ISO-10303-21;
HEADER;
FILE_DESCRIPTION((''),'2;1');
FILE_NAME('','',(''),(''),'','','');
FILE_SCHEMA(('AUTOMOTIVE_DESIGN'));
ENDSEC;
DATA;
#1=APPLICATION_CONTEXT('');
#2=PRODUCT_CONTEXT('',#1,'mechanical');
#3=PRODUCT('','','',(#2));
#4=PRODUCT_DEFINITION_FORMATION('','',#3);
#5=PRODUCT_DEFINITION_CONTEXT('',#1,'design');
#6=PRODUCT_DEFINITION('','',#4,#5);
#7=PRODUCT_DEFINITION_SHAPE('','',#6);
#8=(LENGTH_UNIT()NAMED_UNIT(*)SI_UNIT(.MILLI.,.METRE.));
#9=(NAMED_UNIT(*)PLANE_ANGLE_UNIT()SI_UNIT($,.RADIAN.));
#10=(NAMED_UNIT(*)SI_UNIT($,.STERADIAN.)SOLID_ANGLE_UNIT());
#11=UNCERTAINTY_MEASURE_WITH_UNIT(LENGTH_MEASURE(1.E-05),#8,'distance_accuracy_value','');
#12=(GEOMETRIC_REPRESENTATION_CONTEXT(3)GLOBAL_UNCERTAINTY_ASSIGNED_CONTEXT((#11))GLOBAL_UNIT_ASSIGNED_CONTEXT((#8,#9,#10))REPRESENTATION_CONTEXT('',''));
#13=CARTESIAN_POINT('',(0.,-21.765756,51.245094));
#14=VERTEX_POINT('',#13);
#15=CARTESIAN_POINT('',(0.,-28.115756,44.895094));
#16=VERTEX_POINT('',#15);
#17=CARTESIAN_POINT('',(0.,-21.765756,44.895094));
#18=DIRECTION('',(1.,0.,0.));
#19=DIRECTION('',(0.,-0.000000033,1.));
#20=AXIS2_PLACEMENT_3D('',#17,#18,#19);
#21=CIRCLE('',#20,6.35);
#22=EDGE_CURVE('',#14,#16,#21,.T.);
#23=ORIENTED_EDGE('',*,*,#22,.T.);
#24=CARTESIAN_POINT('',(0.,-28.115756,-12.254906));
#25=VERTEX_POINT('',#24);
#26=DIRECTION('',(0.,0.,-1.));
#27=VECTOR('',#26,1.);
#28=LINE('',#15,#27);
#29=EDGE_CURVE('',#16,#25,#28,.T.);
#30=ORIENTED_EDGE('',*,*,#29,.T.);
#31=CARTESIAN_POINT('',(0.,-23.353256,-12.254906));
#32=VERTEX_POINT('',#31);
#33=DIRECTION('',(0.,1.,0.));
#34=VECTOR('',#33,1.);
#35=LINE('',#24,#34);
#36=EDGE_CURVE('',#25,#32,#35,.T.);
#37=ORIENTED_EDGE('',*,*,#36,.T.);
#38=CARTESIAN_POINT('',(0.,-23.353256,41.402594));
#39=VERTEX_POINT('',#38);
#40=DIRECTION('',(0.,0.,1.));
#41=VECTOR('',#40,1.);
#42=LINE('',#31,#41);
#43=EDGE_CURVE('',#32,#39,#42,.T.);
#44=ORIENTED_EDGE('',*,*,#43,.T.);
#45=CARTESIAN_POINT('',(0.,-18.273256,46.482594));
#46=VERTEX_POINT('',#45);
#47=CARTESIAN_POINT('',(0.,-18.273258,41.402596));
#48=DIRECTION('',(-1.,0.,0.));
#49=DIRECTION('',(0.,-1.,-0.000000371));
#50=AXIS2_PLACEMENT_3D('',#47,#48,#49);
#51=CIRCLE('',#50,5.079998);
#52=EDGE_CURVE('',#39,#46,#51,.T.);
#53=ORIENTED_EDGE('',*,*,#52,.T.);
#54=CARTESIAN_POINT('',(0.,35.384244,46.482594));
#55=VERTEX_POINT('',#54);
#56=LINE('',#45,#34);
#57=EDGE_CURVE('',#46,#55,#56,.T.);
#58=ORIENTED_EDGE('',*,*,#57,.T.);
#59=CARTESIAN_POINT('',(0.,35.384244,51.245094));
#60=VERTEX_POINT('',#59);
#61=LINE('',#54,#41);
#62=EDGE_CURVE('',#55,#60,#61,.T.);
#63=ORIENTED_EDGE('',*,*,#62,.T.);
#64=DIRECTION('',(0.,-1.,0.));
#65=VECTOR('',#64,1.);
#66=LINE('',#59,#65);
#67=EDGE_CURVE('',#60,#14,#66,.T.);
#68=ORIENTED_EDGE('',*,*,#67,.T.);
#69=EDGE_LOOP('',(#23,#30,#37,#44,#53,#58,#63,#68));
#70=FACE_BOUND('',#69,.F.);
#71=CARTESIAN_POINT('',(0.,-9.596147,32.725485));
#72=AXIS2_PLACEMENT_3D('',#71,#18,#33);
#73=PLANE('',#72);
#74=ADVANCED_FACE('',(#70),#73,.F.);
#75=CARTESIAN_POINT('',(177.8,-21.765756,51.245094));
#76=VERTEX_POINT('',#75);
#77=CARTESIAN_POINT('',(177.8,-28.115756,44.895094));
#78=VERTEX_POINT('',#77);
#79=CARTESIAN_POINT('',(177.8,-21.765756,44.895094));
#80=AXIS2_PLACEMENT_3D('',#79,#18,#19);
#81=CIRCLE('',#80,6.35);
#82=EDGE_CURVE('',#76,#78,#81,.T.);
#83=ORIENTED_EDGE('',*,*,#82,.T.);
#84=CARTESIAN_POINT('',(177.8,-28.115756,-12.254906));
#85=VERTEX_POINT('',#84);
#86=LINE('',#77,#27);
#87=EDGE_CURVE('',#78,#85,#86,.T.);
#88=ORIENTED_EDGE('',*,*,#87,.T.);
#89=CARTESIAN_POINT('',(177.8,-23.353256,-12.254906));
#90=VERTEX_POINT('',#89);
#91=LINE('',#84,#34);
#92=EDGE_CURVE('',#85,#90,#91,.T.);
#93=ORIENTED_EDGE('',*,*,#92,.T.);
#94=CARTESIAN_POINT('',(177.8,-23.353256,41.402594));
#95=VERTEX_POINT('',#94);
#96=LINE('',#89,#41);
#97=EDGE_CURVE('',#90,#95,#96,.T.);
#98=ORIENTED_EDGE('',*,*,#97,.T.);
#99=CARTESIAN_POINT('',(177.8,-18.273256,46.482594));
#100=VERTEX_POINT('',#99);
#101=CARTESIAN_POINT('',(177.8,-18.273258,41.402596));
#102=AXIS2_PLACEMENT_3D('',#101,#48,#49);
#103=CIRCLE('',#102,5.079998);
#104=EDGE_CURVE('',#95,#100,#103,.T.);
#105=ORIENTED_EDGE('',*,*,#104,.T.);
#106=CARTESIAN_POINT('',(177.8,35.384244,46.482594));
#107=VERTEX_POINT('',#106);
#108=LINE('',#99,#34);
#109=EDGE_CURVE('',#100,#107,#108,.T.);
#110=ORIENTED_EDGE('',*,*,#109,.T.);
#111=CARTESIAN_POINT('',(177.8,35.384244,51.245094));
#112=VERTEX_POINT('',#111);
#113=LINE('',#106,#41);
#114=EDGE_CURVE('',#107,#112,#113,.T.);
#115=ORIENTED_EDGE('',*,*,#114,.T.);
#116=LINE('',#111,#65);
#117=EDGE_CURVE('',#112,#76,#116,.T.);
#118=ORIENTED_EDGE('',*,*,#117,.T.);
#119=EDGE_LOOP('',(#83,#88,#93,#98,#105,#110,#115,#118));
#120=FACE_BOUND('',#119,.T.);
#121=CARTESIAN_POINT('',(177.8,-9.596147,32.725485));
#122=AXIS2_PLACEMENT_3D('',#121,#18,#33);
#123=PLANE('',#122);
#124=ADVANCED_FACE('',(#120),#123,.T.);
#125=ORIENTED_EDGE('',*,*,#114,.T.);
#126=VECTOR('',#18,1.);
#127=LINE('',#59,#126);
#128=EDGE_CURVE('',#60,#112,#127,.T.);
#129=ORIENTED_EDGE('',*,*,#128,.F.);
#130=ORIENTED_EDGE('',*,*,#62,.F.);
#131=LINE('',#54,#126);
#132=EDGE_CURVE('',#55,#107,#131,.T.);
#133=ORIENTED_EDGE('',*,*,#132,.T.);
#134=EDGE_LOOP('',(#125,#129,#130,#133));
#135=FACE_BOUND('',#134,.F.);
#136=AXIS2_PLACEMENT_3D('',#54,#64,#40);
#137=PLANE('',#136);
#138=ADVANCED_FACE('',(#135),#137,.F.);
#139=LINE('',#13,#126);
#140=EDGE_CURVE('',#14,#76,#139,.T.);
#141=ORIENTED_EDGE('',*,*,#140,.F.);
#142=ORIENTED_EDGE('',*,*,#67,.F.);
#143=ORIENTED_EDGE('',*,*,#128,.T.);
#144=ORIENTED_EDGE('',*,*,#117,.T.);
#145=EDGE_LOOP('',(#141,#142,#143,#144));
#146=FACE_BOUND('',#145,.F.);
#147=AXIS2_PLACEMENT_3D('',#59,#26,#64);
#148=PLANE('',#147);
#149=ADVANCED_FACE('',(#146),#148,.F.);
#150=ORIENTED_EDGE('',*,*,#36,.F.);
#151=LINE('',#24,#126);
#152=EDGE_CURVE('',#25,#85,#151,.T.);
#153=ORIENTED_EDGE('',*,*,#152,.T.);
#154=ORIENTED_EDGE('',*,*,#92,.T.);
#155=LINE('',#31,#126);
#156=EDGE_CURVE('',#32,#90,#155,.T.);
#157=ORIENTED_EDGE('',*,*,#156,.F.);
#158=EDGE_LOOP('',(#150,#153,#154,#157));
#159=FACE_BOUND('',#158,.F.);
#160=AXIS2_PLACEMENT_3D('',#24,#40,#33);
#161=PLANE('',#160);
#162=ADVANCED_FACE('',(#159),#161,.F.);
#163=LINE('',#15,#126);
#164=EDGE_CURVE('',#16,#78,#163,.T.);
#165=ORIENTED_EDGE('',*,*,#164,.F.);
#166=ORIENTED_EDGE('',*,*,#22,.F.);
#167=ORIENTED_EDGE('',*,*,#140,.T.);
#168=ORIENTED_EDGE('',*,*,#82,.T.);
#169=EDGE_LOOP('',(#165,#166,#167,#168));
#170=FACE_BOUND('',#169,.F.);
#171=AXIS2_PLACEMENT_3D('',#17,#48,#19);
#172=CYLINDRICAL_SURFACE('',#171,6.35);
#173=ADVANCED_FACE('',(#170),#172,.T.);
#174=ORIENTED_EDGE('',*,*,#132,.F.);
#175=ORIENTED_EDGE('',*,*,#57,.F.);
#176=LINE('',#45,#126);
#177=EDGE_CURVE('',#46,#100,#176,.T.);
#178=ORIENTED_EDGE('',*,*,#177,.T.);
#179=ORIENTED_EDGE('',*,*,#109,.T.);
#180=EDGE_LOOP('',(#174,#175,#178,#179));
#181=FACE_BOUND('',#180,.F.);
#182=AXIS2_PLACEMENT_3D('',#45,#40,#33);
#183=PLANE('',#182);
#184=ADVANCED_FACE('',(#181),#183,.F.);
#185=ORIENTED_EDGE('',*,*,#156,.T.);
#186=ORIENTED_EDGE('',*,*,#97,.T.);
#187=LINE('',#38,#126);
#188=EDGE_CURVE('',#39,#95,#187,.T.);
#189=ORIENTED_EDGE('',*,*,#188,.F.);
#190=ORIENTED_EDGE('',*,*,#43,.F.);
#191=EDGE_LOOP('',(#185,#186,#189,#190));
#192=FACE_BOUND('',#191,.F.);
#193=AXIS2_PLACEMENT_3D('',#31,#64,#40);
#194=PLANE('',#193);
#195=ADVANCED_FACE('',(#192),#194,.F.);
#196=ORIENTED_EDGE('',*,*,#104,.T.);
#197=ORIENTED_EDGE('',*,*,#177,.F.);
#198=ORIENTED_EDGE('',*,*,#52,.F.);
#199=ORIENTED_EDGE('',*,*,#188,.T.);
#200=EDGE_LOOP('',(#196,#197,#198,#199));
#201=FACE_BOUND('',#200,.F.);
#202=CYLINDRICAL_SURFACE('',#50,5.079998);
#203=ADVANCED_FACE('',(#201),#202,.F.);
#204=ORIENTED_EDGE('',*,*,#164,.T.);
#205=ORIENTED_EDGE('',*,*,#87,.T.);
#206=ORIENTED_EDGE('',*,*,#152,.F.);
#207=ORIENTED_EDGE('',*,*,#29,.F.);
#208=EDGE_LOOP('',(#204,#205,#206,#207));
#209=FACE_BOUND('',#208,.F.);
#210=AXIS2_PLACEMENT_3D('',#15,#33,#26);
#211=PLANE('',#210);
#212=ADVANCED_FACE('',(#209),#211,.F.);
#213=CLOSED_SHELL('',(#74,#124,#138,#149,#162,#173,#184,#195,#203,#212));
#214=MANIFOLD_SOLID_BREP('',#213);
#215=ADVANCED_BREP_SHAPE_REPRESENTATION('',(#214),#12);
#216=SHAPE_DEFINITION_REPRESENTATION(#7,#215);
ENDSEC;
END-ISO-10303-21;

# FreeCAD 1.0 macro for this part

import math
import FreeCAD as App
import Part
import Sketcher
Q = App.Units.Quantity

doc = App.newDocument("Part")
params = doc.addObject("Spreadsheet::Sheet", "Params")
for row, (alias, value) in enumerate([
    ("sketch1_radius", "0.1999999 in"),
    ("sketch1_radius2", "0.25 in"),
    ("sketch1_width", "2.25 in"),
    ("sketch1_width2", "0.1875 in"),
    ("pad1_length", "7 in"),
], start=1):
    params.set(f"A{row}", alias)
    params.set(f"B{row}", "=" + value)
    params.setAlias(f"B{row}", alias)

body = doc.addObject("PartDesign::Body", "Body")

# Sketch on YZ plane
sketch1 = body.newObject("Sketcher::SketchObject", "Sketch")
sketch1.AttachmentSupport = (doc.getObject("YZ_Plane"), [""])
sketch1.MapMode = "FlatFace"
sketch1.addGeometry([
    Part.LineSegment(App.Vector(-28.115756, 44.895094, 0), App.Vector(-28.115756, -12.254906, 0)),  # 0
    Part.LineSegment(App.Vector(-28.115756, -12.254906, 0), App.Vector(-23.353256, -12.254906, 0)),  # 1
    Part.LineSegment(App.Vector(-23.353256, -12.254906, 0), App.Vector(-23.353256, 41.402594, 0)),  # 2
    Part.ArcOfCircle(Part.Circle(App.Vector(-18.273258, 41.402596, 0), App.Vector(0, 0, 1), 5.079998), math.radians(89.999979), math.radians(180.000021)),  # 3
    Part.LineSegment(App.Vector(-18.273256, 46.482594, 0), App.Vector(35.384244, 46.482594, 0)),  # 4
    Part.LineSegment(App.Vector(35.384244, 46.482594, 0), App.Vector(35.384244, 51.245094, 0)),  # 5
    Part.LineSegment(App.Vector(35.384244, 51.245094, 0), App.Vector(-21.765756, 51.245094, 0)),  # 6
    Part.ArcOfCircle(Part.Circle(App.Vector(-21.765756, 44.895094, 0), App.Vector(0, 0, 1), 6.35), math.radians(90.000002), math.radians(179.999998)),  # 7
], False)
sketch1.addConstraint([
    Sketcher.Constraint("Coincident", 0, 2, 1, 1),
    Sketcher.Constraint("Coincident", 1, 2, 2, 1),
    Sketcher.Constraint("Tangent", 2, 2, 3, 2),
    Sketcher.Constraint("Tangent", 3, 1, 4, 1),
    Sketcher.Constraint("Coincident", 4, 2, 5, 1),
    Sketcher.Constraint("Coincident", 5, 2, 6, 1),
    Sketcher.Constraint("Tangent", 6, 2, 7, 1),
    Sketcher.Constraint("Tangent", 7, 2, 0, 1),
    Sketcher.Constraint("Vertical", 0),
    Sketcher.Constraint("Horizontal", 1),
    Sketcher.Constraint("Vertical", 2),
    Sketcher.Constraint("Horizontal", 4),
    Sketcher.Constraint("Vertical", 5),
    Sketcher.Constraint("Horizontal", 6),
    Sketcher.Constraint("Equal", 6, 0),
    Sketcher.Constraint("Equal", 4, 2),
    Sketcher.Constraint("Radius", 3, Q("0.1999999 in")),
    Sketcher.Constraint("Radius", 7, Q("0.25 in")),
    Sketcher.Constraint("DistanceX", 6, 2, 6, 1, Q("2.25 in")),
    Sketcher.Constraint("DistanceX", 1, 1, 1, 2, Q("0.1875 in")),
    Sketcher.Constraint("DistanceX", 3, 3, -1, 1, 18.273258),
    Sketcher.Constraint("DistanceY", -1, 1, 3, 3, 41.402596),
])
sketch1.setExpression("Constraints[16]", "Params.sketch1_radius")
sketch1.setExpression("Constraints[17]", "Params.sketch1_radius2")
sketch1.setExpression("Constraints[18]", "Params.sketch1_width")
sketch1.setExpression("Constraints[19]", "Params.sketch1_width2")
pad1 = body.newObject("PartDesign::Pad", "Pad")
pad1.Profile = sketch1
pad1.setExpression("Length", "Params.pad1_length")

doc.recompute()
